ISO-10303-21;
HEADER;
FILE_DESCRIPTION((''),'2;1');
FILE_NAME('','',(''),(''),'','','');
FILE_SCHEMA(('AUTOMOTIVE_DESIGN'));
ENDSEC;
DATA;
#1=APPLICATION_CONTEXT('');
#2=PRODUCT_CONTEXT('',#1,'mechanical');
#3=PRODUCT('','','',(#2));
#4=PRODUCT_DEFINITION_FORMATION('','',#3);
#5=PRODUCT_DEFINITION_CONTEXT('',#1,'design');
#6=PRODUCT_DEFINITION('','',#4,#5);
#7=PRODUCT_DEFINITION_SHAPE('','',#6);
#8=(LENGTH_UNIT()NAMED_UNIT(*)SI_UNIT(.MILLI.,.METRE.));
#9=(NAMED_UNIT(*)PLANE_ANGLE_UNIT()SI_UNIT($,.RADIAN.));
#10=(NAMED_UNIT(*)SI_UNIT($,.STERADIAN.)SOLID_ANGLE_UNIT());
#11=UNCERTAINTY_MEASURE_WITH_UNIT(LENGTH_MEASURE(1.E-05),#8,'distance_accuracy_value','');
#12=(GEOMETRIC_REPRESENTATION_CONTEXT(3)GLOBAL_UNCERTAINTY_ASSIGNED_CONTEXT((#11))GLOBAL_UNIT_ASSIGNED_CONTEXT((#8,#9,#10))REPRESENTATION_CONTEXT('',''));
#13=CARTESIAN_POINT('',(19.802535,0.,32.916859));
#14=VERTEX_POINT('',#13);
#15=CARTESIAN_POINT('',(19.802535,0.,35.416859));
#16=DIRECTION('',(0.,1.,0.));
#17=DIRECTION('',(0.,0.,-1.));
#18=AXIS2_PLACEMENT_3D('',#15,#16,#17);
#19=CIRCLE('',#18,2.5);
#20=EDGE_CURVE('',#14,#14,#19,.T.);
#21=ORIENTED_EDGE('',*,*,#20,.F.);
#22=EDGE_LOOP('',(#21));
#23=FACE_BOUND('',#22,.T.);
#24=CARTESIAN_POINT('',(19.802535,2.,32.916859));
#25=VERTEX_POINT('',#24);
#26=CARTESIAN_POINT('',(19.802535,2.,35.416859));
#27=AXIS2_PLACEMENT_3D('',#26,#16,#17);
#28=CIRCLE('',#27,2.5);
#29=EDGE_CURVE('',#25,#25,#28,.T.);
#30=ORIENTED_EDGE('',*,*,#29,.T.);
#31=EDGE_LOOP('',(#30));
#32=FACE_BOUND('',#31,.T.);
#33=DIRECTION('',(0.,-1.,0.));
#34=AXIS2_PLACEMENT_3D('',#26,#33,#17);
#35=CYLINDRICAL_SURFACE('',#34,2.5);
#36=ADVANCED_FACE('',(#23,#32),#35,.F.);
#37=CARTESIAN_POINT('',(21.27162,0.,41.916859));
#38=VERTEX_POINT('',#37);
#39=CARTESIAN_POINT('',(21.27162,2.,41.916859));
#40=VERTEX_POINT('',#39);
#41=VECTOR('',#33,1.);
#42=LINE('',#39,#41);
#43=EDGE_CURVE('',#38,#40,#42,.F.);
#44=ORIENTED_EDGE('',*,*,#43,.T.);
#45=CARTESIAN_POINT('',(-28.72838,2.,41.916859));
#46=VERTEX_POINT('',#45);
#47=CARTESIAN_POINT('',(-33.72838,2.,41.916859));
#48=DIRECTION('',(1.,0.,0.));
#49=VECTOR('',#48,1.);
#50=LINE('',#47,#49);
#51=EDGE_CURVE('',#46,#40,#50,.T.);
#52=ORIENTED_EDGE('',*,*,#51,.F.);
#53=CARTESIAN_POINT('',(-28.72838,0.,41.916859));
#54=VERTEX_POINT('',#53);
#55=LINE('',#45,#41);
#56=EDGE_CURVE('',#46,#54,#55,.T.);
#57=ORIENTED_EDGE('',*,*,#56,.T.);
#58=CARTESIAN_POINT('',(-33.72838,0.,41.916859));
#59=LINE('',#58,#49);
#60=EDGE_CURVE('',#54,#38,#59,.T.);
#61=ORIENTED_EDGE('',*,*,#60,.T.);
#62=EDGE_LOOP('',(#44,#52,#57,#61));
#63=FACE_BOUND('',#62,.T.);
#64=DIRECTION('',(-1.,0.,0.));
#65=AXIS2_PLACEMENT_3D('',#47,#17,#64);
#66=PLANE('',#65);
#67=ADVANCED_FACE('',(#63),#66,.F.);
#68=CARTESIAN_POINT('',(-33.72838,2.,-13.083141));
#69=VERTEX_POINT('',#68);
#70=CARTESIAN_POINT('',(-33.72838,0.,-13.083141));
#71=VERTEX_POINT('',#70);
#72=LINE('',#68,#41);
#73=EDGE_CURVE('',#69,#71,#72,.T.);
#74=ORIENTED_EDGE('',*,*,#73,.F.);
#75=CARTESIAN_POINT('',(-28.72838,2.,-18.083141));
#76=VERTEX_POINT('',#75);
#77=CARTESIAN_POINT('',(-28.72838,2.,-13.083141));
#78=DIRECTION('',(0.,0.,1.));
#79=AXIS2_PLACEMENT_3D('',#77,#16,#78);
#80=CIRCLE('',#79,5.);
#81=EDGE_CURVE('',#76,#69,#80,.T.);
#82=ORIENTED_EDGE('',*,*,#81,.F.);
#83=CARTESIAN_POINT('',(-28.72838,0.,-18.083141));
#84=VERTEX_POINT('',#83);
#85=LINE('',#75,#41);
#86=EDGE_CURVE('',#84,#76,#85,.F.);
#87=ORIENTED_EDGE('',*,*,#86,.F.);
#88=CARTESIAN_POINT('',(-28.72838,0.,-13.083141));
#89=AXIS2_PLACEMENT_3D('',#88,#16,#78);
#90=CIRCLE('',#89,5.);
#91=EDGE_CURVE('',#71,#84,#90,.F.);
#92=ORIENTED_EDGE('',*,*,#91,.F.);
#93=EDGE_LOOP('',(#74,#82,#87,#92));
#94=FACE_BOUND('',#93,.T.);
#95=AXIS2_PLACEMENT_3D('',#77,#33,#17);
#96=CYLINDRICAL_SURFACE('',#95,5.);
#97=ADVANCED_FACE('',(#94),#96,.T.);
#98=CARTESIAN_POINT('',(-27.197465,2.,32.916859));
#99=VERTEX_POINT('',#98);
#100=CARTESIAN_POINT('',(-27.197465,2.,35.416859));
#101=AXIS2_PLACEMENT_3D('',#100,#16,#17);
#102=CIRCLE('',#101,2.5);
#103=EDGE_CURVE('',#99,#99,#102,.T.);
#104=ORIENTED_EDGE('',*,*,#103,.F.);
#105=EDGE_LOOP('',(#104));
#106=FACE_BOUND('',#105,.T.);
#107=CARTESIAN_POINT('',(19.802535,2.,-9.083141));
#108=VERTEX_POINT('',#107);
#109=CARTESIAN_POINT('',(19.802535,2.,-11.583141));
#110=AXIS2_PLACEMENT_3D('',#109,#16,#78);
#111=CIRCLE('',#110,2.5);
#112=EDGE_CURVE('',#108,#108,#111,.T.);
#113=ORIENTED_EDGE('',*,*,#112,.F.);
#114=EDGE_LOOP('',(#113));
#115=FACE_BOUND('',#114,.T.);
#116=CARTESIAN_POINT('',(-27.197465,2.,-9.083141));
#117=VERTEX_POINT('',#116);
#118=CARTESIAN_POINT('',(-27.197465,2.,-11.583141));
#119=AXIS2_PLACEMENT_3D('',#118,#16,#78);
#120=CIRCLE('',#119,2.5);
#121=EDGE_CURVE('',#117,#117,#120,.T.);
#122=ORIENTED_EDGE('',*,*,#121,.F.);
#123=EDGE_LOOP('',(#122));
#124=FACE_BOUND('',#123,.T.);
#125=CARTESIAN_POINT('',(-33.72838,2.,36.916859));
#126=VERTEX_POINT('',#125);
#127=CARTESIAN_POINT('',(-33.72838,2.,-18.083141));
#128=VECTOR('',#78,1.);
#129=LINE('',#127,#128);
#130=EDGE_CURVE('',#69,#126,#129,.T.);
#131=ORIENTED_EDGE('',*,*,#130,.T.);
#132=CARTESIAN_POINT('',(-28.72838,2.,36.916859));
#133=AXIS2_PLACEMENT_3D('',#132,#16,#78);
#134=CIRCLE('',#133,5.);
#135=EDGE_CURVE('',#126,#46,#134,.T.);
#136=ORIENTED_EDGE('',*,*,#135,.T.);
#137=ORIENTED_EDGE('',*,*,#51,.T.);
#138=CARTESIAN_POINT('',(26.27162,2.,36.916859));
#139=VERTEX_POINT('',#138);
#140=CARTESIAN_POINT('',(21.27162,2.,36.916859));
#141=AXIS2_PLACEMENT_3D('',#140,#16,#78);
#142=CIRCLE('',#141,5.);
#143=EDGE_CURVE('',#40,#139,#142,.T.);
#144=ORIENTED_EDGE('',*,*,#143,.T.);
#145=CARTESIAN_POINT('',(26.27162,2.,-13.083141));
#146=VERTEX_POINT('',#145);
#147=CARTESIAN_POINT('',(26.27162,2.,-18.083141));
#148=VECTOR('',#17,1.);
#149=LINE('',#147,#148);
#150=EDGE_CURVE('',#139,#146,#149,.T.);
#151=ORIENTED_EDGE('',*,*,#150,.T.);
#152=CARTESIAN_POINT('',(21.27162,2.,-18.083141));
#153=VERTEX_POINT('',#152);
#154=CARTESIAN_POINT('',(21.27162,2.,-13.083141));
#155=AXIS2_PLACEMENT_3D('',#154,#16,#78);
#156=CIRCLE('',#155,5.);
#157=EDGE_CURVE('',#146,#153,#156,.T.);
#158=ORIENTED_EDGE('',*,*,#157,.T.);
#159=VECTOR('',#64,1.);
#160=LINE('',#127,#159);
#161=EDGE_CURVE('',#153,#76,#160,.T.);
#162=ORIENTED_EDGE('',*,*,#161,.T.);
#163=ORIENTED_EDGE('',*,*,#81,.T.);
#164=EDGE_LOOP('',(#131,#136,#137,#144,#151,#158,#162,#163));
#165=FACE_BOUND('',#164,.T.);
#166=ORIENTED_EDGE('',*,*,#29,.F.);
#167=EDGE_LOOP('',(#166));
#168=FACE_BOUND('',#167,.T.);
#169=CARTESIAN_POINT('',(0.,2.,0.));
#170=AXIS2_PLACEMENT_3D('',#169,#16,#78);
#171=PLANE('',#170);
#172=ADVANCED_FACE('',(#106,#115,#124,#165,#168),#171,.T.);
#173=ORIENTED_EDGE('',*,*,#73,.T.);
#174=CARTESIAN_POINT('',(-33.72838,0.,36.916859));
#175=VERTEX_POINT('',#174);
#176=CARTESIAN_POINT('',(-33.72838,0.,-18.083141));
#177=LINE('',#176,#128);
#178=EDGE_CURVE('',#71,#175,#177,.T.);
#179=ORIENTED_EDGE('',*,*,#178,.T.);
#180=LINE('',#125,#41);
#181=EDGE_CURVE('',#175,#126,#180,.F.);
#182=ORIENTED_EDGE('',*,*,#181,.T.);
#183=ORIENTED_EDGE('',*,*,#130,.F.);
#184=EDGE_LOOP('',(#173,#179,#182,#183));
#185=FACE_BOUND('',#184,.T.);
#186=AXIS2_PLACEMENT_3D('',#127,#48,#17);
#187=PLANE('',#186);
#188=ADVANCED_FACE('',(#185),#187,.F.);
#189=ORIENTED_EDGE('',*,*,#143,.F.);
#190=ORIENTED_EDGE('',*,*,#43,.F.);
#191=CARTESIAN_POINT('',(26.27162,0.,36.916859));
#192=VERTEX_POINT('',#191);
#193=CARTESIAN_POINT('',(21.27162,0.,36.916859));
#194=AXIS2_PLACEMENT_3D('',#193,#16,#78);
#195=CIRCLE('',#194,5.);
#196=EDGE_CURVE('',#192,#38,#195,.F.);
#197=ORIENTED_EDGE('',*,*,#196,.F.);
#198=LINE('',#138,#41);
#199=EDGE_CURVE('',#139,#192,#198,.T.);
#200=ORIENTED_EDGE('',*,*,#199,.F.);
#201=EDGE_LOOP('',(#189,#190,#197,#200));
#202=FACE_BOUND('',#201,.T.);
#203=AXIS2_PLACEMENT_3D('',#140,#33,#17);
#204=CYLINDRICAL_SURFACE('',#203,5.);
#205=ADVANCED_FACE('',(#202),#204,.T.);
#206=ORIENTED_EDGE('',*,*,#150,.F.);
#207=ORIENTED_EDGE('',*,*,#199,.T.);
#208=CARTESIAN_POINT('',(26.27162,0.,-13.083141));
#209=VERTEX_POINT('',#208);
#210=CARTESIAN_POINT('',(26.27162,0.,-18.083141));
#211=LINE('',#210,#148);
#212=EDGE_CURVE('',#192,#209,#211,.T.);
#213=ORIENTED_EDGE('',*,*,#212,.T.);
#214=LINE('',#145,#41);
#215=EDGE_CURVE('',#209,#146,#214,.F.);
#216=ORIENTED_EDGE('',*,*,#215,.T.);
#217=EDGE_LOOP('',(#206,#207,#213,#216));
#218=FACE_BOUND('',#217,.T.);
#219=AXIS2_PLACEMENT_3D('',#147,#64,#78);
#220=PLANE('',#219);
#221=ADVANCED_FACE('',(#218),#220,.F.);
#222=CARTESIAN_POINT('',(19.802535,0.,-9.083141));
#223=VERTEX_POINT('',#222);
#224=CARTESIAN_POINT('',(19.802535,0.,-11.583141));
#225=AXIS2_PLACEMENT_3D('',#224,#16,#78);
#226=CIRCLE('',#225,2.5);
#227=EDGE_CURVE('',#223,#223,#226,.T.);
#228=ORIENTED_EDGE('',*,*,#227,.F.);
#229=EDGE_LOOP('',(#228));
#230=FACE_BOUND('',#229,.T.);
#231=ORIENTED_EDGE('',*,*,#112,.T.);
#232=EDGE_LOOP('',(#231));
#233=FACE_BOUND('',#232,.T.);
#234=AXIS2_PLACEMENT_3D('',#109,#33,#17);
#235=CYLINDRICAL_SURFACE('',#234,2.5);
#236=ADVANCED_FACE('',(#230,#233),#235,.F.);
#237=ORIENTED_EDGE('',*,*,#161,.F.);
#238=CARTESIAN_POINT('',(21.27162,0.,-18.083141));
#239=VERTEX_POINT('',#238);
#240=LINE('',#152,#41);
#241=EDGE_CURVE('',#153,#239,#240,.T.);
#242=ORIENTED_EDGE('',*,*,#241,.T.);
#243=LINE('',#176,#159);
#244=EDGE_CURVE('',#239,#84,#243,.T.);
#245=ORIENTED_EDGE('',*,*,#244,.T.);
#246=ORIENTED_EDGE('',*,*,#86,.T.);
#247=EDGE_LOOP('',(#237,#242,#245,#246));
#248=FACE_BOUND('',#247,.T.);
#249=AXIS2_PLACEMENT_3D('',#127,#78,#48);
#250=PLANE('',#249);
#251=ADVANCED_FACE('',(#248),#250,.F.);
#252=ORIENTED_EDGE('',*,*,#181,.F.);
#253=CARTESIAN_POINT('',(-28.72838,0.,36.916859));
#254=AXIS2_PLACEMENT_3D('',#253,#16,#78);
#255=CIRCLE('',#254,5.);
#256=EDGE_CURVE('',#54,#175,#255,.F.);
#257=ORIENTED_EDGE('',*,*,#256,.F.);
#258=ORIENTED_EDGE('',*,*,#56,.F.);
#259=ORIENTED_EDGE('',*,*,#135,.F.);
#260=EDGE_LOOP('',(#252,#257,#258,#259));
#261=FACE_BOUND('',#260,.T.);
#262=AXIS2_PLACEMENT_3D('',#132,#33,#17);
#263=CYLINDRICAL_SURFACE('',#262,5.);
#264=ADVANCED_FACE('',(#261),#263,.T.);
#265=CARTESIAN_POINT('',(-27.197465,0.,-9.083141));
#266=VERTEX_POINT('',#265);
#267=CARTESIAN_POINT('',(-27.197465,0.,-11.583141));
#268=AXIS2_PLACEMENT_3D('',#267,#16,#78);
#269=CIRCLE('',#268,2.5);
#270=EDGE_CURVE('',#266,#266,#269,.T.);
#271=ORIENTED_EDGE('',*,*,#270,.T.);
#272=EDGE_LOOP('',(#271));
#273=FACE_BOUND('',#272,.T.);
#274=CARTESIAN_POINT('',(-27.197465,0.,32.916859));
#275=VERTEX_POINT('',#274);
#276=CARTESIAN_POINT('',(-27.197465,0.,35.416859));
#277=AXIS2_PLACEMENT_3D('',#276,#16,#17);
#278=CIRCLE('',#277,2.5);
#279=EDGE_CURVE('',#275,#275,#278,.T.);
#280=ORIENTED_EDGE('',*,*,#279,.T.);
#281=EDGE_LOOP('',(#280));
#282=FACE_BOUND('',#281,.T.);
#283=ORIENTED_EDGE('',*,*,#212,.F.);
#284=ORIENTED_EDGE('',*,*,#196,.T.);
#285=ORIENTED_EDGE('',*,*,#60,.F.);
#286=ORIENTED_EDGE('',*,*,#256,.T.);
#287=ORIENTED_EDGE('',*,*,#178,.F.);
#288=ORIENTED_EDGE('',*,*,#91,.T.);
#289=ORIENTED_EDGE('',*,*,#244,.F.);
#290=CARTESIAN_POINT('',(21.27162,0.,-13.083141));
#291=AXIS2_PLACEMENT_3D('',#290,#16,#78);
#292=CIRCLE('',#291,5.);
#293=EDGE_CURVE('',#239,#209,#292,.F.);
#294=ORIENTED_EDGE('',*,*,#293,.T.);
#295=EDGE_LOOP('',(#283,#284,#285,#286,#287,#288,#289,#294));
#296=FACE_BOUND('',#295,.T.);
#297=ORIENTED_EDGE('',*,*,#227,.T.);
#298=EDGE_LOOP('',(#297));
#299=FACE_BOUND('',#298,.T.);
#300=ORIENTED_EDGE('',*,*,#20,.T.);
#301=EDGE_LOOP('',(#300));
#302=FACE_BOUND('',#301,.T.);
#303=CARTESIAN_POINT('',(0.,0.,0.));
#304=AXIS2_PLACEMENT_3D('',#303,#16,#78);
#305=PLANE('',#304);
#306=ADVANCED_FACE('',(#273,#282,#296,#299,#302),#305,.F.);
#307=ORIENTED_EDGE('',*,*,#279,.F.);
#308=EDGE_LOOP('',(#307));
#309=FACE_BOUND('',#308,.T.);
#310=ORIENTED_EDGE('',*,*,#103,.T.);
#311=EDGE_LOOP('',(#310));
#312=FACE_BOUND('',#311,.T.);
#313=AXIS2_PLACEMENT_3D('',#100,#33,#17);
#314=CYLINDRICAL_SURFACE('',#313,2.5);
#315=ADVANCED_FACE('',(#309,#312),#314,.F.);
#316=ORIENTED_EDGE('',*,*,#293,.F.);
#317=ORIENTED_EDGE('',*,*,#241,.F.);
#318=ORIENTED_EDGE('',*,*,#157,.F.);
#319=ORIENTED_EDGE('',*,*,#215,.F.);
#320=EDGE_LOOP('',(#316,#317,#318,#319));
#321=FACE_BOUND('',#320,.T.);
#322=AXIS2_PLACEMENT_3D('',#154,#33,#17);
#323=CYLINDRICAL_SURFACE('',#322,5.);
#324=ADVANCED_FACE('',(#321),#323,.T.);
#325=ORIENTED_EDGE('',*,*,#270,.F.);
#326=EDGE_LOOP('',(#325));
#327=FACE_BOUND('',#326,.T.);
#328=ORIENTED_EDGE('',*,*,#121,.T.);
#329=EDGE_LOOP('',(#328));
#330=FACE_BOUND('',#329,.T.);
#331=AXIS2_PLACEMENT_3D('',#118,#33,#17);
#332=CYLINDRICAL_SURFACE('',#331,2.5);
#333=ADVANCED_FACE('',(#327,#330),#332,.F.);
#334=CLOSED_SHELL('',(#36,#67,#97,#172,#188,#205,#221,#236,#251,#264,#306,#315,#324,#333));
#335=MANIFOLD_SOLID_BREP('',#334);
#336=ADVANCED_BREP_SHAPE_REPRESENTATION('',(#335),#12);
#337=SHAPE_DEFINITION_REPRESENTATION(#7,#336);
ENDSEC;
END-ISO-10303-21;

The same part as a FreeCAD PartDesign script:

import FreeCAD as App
import Part
import Sketcher
Q = App.Units.Quantity


def edges_at(feature, points):
    """Names of the edges that pass closest to the given points."""
    edges = feature.Shape.Edges
    near = lambda p: min(range(len(edges)), key=lambda i: edges[i].distToShape(Part.Vertex(*p))[0])
    return sorted({f"Edge{near(p) + 1}" for p in points})

doc = App.newDocument("Part")
body = doc.addObject("PartDesign::Body", "Body")

sketch1 = body.newObject("Sketcher::SketchObject", "Sketch")
sketch1.AttachmentSupport = (doc.getObject("XZ_Plane"), [""])
sketch1.MapMode = "FlatFace"
sketch1.addGeometry([
    Part.LineSegment(App.Vector(-33.7, -18.1, 0), App.Vector(-33.7, 41.9, 0)),
    Part.LineSegment(App.Vector(-33.7, 41.9, 0), App.Vector(26.3, 41.9, 0)),
    Part.LineSegment(App.Vector(26.3, 41.9, 0), App.Vector(26.3, -18.1, 0)),
    Part.LineSegment(App.Vector(26.3, -18.1, 0), App.Vector(-33.7, -18.1, 0)),
    Part.Circle(App.Vector(-27.2, 35.4, 0), App.Vector(0, 0, 1), 2.5),
    Part.Circle(App.Vector(19.8, 35.4, 0), App.Vector(0, 0, 1), 2.5),
    Part.Circle(App.Vector(-27.2, -11.6, 0), App.Vector(0, 0, 1), 2.5),
    Part.Circle(App.Vector(19.8, -11.6, 0), App.Vector(0, 0, 1), 2.5),
], False)
sketch1.addConstraint([
    Sketcher.Constraint("Coincident", 0, 2, 1, 1),
    Sketcher.Constraint("Coincident", 1, 2, 2, 1),
    Sketcher.Constraint("Coincident", 2, 2, 3, 1),
    Sketcher.Constraint("Coincident", 3, 2, 0, 1),
    Sketcher.Constraint("Vertical", 0),
    Sketcher.Constraint("Horizontal", 1),
    Sketcher.Constraint("Vertical", 2),
    Sketcher.Constraint("Horizontal", 3),
    Sketcher.Constraint("Equal", 4, 5),
    Sketcher.Constraint("Equal", 5, 6),
    Sketcher.Constraint("Equal", 6, 7),
    Sketcher.Constraint("Horizontal", 4, 3, 5, 3),
    Sketcher.Constraint("Horizontal", 6, 3, 7, 3),
    Sketcher.Constraint("Vertical", 4, 3, 6, 3),
    Sketcher.Constraint("Vertical", 5, 3, 7, 3),
    Sketcher.Constraint("Equal", 3, 0),
    Sketcher.Constraint("Diameter", 4, Q("5 mm")),
    Sketcher.Constraint("DistanceX", 1, 1, 1, 2, Q("60 mm")),
    Sketcher.Constraint("DistanceX", 4, 3, 5, 3, Q("47 mm")),
    Sketcher.Constraint("DistanceY", 6, 3, 4, 3, Q("47 mm")),
    Sketcher.Constraint("DistanceY", 4, 3, 0, 2, Q("6.5 mm")),
    Sketcher.Constraint("DistanceY", -1, 1, 4, 3, Q("35.416859 mm")),
    Sketcher.Constraint("DistanceX", 0, 2, -1, 1, Q("33.72838 mm")),
    Sketcher.Constraint("DistanceX", 4, 3, -1, 1, Q("27.197465 mm")),
])
pad1 = body.newObject("PartDesign::Pad", "Pad")
pad1.Profile = sketch1
pad1.Length = 2
pad1.Reversed = True
doc.recompute()

fillet = body.newObject("PartDesign::Fillet", "Fillet")
fillet.Base = (pad1, edges_at(pad1, [
    (-33.728, 1, -18.083),
    (26.272, 1, -18.083),
    (26.272, 1, 41.917),
    (-33.728, 1, 41.917),
]))
fillet.Radius = 5

doc.recompute()
